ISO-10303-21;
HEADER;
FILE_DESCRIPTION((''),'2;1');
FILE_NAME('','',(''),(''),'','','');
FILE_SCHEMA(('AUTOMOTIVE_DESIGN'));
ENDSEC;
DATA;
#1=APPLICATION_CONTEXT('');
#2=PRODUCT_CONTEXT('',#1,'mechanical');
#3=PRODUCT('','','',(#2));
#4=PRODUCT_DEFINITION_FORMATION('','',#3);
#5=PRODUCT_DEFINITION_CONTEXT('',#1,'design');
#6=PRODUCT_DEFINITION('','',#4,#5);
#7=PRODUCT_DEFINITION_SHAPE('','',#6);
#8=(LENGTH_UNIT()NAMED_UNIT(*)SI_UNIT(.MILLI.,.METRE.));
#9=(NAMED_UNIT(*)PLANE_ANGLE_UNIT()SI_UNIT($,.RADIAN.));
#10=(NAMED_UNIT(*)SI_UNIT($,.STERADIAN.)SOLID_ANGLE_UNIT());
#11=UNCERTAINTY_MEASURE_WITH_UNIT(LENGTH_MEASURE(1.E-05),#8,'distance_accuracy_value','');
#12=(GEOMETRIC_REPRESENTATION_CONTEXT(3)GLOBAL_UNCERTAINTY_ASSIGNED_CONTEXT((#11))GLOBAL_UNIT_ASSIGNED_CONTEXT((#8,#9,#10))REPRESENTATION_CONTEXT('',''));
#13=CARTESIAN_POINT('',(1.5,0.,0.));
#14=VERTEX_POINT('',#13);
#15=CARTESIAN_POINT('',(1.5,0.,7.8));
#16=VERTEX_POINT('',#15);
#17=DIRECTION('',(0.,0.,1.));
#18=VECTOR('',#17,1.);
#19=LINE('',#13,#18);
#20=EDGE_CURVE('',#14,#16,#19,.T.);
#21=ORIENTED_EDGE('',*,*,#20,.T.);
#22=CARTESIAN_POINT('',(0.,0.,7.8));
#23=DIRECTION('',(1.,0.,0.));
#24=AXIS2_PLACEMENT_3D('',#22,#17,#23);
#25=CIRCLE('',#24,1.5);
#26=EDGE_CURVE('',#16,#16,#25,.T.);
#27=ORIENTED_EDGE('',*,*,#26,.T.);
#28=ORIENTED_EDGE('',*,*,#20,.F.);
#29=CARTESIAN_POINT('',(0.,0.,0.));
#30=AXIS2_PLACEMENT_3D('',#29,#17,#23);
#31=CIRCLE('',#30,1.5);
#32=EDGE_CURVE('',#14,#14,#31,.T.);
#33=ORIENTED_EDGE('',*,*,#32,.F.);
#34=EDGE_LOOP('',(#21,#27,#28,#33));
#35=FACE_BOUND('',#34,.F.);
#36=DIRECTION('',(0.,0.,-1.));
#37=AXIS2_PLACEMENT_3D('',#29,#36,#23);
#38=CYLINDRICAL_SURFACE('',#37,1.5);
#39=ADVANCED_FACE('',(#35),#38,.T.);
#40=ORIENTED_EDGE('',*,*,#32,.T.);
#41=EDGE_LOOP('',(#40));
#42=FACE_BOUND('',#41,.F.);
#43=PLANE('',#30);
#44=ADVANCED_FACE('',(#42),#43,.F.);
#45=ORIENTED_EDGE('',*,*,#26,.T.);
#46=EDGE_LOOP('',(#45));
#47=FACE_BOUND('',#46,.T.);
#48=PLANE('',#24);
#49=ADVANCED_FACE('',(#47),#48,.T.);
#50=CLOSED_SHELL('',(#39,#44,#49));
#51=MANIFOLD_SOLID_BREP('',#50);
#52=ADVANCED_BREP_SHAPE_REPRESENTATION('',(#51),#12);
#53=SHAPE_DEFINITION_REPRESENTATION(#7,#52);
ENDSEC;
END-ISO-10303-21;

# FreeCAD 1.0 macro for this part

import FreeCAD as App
import Part
import Sketcher
from FreeCAD import Vector
Q = App.Units.Quantity

doc = App.newDocument("Part")
body = doc.addObject("PartDesign::Body", "Body")

# Sketch on XY plane
sketch1 = body.newObject("Sketcher::SketchObject", "Sketch")
sketch1.AttachmentSupport = (doc.getObject("XY_Plane"), [""])
sketch1.MapMode = "FlatFace"
sketch1.addGeometry(Part.Circle(Vector(0, 0, 0), Vector(0, 0, 1), 1.5), False)
sketch1.addConstraint([
    Sketcher.Constraint("Coincident", 0, 3, -1, 1),
    Sketcher.Constraint("Diameter", 0, Q("3 mm")),
])
pad1 = body.newObject("PartDesign::Pad", "Pad")
pad1.Profile = sketch1
pad1.Length = 7.8

doc.recompute()
